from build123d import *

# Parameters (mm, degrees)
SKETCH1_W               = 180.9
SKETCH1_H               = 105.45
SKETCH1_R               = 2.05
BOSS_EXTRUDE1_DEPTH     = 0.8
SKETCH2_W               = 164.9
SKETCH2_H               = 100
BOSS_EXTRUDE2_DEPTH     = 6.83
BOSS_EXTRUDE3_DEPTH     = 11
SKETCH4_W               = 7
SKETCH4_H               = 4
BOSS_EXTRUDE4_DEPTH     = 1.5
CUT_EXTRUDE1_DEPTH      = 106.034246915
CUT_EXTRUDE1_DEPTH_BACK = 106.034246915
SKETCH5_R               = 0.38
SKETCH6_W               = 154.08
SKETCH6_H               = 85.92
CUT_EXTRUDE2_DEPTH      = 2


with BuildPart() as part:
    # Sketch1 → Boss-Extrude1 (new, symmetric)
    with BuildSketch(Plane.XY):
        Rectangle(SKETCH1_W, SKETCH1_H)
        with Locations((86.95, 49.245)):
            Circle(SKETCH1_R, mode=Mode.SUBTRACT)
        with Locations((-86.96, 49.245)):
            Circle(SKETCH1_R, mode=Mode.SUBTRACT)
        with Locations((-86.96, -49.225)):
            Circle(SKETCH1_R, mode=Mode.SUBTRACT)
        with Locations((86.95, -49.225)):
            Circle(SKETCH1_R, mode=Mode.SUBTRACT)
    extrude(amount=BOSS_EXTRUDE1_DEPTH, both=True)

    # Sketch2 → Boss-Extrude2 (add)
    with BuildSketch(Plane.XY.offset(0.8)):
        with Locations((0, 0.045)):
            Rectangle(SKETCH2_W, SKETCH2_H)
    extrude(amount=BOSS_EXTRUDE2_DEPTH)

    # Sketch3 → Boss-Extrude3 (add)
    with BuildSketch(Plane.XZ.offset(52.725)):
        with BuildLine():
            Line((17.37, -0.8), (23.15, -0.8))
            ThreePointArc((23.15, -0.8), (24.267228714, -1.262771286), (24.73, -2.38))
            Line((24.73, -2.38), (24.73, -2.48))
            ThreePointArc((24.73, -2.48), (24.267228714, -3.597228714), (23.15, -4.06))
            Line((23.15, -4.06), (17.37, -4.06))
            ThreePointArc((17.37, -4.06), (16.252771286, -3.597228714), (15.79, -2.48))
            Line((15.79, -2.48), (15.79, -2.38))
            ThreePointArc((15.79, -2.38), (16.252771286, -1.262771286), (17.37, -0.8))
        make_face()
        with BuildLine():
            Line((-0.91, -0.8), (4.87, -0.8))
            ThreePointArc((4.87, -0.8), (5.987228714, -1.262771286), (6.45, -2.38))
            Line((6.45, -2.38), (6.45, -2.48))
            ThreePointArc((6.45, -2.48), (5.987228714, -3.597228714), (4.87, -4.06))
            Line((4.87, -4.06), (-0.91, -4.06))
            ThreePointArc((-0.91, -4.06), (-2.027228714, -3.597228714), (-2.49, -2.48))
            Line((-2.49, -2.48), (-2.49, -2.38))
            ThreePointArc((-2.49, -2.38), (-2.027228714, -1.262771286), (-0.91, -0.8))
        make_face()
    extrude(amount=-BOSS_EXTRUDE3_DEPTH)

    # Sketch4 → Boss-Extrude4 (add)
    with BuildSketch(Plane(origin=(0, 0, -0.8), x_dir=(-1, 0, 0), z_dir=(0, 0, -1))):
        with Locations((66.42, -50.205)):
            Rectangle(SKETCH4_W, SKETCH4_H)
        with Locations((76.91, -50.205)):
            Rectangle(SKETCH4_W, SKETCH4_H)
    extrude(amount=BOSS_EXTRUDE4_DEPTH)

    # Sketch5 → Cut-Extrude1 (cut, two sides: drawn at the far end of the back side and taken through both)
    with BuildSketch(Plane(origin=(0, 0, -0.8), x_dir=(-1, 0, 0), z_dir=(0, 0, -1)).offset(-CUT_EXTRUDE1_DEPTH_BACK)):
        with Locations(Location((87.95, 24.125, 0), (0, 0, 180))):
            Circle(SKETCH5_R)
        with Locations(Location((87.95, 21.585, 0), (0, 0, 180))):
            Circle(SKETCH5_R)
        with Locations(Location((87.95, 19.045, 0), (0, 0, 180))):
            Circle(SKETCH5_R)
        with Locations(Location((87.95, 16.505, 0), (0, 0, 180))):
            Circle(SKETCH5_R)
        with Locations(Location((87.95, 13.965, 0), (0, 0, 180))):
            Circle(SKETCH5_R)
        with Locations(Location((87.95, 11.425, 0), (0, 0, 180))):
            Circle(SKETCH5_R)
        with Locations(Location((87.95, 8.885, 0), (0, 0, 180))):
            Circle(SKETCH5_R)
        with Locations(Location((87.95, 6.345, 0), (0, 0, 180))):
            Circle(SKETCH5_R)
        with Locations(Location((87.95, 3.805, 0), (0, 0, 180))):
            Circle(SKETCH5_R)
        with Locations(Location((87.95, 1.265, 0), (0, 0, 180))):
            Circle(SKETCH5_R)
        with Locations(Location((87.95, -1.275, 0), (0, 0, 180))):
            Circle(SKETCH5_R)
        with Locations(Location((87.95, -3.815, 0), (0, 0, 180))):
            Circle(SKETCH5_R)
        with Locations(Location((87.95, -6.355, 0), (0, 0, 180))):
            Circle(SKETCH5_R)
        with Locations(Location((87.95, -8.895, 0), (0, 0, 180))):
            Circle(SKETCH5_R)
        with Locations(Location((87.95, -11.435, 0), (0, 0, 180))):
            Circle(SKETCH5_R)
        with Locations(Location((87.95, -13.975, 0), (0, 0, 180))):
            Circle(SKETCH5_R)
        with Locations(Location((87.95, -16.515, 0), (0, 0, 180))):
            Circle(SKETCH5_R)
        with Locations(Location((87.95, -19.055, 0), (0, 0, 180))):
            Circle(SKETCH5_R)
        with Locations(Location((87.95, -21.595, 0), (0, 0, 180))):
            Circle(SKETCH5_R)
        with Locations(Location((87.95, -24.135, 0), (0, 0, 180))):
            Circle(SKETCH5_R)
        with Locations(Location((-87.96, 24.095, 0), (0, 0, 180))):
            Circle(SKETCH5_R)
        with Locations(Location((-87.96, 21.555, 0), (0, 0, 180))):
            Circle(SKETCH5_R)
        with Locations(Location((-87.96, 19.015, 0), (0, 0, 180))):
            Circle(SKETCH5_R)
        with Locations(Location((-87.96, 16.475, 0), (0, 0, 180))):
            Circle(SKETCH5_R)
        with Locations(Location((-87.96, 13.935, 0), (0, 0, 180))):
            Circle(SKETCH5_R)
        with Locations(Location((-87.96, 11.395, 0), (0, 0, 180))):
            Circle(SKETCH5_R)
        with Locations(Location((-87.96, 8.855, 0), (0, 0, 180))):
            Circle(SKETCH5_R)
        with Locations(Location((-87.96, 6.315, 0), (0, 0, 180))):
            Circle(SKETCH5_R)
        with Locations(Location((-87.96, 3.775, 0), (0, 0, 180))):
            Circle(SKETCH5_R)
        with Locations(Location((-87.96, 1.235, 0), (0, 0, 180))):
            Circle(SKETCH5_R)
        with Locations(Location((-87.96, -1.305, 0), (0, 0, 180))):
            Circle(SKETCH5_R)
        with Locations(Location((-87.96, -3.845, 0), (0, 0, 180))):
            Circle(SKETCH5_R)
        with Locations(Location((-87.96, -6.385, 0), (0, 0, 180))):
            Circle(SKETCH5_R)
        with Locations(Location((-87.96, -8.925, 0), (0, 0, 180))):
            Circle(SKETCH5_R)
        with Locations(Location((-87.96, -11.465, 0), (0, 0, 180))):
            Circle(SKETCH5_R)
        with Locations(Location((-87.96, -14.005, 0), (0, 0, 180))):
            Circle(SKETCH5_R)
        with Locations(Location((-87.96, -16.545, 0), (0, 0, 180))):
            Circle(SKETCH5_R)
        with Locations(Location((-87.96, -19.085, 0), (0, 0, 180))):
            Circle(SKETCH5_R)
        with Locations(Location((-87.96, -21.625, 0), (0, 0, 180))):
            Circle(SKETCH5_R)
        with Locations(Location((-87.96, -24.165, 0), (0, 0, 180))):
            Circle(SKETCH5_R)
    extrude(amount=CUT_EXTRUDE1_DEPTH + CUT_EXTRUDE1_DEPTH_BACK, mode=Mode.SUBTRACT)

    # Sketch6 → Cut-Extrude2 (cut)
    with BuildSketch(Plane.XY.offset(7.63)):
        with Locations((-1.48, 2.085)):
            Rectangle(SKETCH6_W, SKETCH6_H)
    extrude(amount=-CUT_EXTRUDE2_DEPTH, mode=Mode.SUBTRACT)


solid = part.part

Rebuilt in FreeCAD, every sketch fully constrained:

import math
import FreeCAD as App
import Part
import Sketcher
from FreeCAD import Vector
Q = App.Units.Quantity


def add_polygon(sketch, points):
    """Adds a closed chain of lines whose ends are joined by coincident constraints."""
    first, n = sketch.GeometryCount, len(points)
    for a, b in zip(points, points[1:] + points[:1]):
        sketch.addGeometry(Part.LineSegment(App.Vector(*a, 0), App.Vector(*b, 0)), False)
    for i in range(n):
        sketch.addConstraint(Sketcher.Constraint("Coincident", first + i, 2, first + (i + 1) % n, 1))

doc = App.newDocument("Part")
body = doc.addObject("PartDesign::Body", "Body")

sketch1 = body.newObject("Sketcher::SketchObject", "Sketch")
sketch1.AttachmentSupport = (doc.getObject("XY_Plane"), [""])
sketch1.MapMode = "FlatFace"
add_polygon(sketch1, [(-90.5, 52.7), (-90.5, -52.7), (90.5, -52.7), (90.5, 52.7)])
sketch1.addGeometry(Part.Circle(Vector(-87, -49.2, 0), Vector(0, 0, 1), 2), False)
sketch1.addGeometry(Part.Circle(Vector(87, -49.2, 0), Vector(0, 0, 1), 2), False)
sketch1.addGeometry(Part.Circle(Vector(-87, 49.2, 0), Vector(0, 0, 1), 2), False)
sketch1.addGeometry(Part.Circle(Vector(87, 49.2, 0), Vector(0, 0, 1), 2), False)
sketch1.addConstraint([
    Sketcher.Constraint("Vertical", 0),
    Sketcher.Constraint("Horizontal", 1),
    Sketcher.Constraint("Vertical", 2),
    Sketcher.Constraint("Horizontal", 3),
    Sketcher.Constraint("Equal", 4, 5),
    Sketcher.Constraint("Equal", 5, 6),
    Sketcher.Constraint("Equal", 6, 7),
    Sketcher.Constraint("Symmetric", 0, 2, 2, 2, -1, 1),
    Sketcher.Constraint("Horizontal", 4, 3, 5, 3),
    Sketcher.Constraint("Horizontal", 6, 3, 7, 3),
    Sketcher.Constraint("Vertical", 4, 3, 6, 3),
    Sketcher.Constraint("Vertical", 5, 3, 7, 3),
    Sketcher.Constraint("Diameter", 4, Q("4.1 mm")),
    Sketcher.Constraint("DistanceX", 1, 1, 1, 2, Q("180.9 mm")),
    Sketcher.Constraint("DistanceY", 0, 2, 0, 1, Q("105.45 mm")),
    Sketcher.Constraint("DistanceY", 0, 2, 4, 3, Q("3.5 mm")),
    Sketcher.Constraint("DistanceX", 0, 2, 5, 3, Q("177.4 mm")),
    Sketcher.Constraint("DistanceX", 4, 3, -1, 1, Q("86.96 mm")),
    Sketcher.Constraint("DistanceY", 4, 3, 6, 3, Q("98.47 mm")),
])
pad1 = body.newObject("PartDesign::Pad", "Pad")
pad1.Profile = sketch1
pad1.Length = 1.6
pad1.Midplane = True

sketch2 = body.newObject("Sketcher::SketchObject", "Sketch001")
sketch2.AttachmentSupport = (doc.getObject("XY_Plane"), [""])
sketch2.MapMode = "FlatFace"
sketch2.AttachmentOffset = App.Placement(Vector(0, 0, 0.8), App.Rotation())
add_polygon(sketch2, [(-82, 50), (-82, -50), (82, -50), (82, 50)])
sketch2.addConstraint([
    Sketcher.Constraint("Vertical", 0),
    Sketcher.Constraint("Horizontal", 1),
    Sketcher.Constraint("Vertical", 2),
    Sketcher.Constraint("Horizontal", 3),
    Sketcher.Constraint("DistanceY", 0, 2, 0, 1, Q("100 mm")),
    Sketcher.Constraint("DistanceX", 1, 1, 1, 2, Q("164.9 mm")),
    Sketcher.Constraint("DistanceX", 0, 2, -1, 1, Q("82.45 mm")),
    Sketcher.Constraint("DistanceY", 0, 2, -1, 1, Q("49.955 mm")),
])
pad2 = body.newObject("PartDesign::Pad", "Pad001")
pad2.Profile = sketch2
pad2.Length = 6.83

sketch3 = body.newObject("Sketcher::SketchObject", "Sketch002")
sketch3.AttachmentSupport = (doc.getObject("XZ_Plane"), [""])
sketch3.MapMode = "FlatFace"
sketch3.AttachmentOffset = App.Placement(Vector(0, 0, 52.725), App.Rotation())
sketch3.addGeometry([
    Part.LineSegment(Vector(23.15, -0.8, 0), Vector(17.37, -0.8, 0)),
    Part.ArcOfCircle(Part.Circle(Vector(17.37, -2.38, 0), Vector(0, 0, 1), 1.58), math.radians(90), math.radians(180)),
    Part.LineSegment(Vector(15.79, -2.38, 0), Vector(15.79, -2.48, 0)),
    Part.ArcOfCircle(Part.Circle(Vector(17.37, -2.48, 0), Vector(0, 0, 1), 1.58), math.radians(-180), math.radians(-90)),
    Part.LineSegment(Vector(17.37, -4.06, 0), Vector(23.15, -4.06, 0)),
    Part.ArcOfCircle(Part.Circle(Vector(23.15, -2.48, 0), Vector(0, 0, 1), 1.58), math.radians(-90), math.radians(0)),
    Part.LineSegment(Vector(24.73, -2.48, 0), Vector(24.73, -2.38, 0)),
    Part.ArcOfCircle(Part.Circle(Vector(23.15, -2.38, 0), Vector(0, 0, 1), 1.58), math.radians(0), math.radians(90)),
    Part.LineSegment(Vector(4.87, -0.8, 0), Vector(-0.91, -0.8, 0)),
    Part.ArcOfCircle(Part.Circle(Vector(-0.91, -2.38, 0), Vector(0, 0, 1), 1.58), math.radians(90), math.radians(180)),
    Part.LineSegment(Vector(-2.49, -2.38, 0), Vector(-2.49, -2.48, 0)),
    Part.ArcOfCircle(Part.Circle(Vector(-0.91, -2.48, 0), Vector(0, 0, 1), 1.58), math.radians(-180), math.radians(-90)),
    Part.LineSegment(Vector(-0.91, -4.06, 0), Vector(4.87, -4.06, 0)),
    Part.ArcOfCircle(Part.Circle(Vector(4.87, -2.48, 0), Vector(0, 0, 1), 1.58), math.radians(-90), math.radians(0)),
    Part.LineSegment(Vector(6.45, -2.48, 0), Vector(6.45, -2.38, 0)),
    Part.ArcOfCircle(Part.Circle(Vector(4.87, -2.38, 0), Vector(0, 0, 1), 1.58), math.radians(0), math.radians(90)),
], False)
sketch3.addConstraint([
    Sketcher.Constraint("Tangent", 0, 2, 1, 1),
    Sketcher.Constraint("Tangent", 1, 2, 2, 1),
    Sketcher.Constraint("Tangent", 2, 2, 3, 1),
    Sketcher.Constraint("Tangent", 3, 2, 4, 1),
    Sketcher.Constraint("Tangent", 4, 2, 5, 1),
    Sketcher.Constraint("Tangent", 5, 2, 6, 1),
    Sketcher.Constraint("Tangent", 6, 2, 7, 1),
    Sketcher.Constraint("Tangent", 7, 2, 0, 1),
    Sketcher.Constraint("Tangent", 8, 2, 9, 1),
    Sketcher.Constraint("Tangent", 9, 2, 10, 1),
    Sketcher.Constraint("Tangent", 10, 2, 11, 1),
    Sketcher.Constraint("Tangent", 11, 2, 12, 1),
    Sketcher.Constraint("Tangent", 12, 2, 13, 1),
    Sketcher.Constraint("Tangent", 13, 2, 14, 1),
    Sketcher.Constraint("Tangent", 14, 2, 15, 1),
    Sketcher.Constraint("Tangent", 15, 2, 8, 1),
    Sketcher.Constraint("Horizontal", 0),
    Sketcher.Constraint("Vertical", 2),
    Sketcher.Constraint("Horizontal", 4),
    Sketcher.Constraint("Vertical", 6),
    Sketcher.Constraint("Horizontal", 8),
    Sketcher.Constraint("Vertical", 10),
    Sketcher.Constraint("Horizontal", 12),
    Sketcher.Constraint("Vertical", 14),
    Sketcher.Constraint("Equal", 1, 3),
    Sketcher.Constraint("Equal", 3, 5),
    Sketcher.Constraint("Equal", 5, 7),
    Sketcher.Constraint("Equal", 7, 9),
    Sketcher.Constraint("Equal", 9, 11),
    Sketcher.Constraint("Equal", 11, 13),
    Sketcher.Constraint("Equal", 13, 15),
    Sketcher.Constraint("Horizontal", 7, 3, 9, 3),
    Sketcher.Constraint("Horizontal", 5, 3, 11, 3),
    Sketcher.Constraint("Equal", 4, 8),
    Sketcher.Constraint("Radius", 1, Q("1.58 mm")),
    Sketcher.Constraint("DistanceY", 2, 2, 2, 1, Q("0.1 mm")),
    Sketcher.Constraint("DistanceX", 0, 2, 0, 1, Q("5.78 mm")),
    Sketcher.Constraint("DistanceY", 0, 2, -1, 1, Q("0.8 mm")),
    Sketcher.Constraint("DistanceX", 13, 3, 3, 3, Q("12.5 mm")),
    Sketcher.Constraint("DistanceX", -1, 1, 1, 3, Q("17.37 mm")),
])
pad3 = body.newObject("PartDesign::Pad", "Pad002")
pad3.Profile = sketch3
pad3.Length = 11
pad3.Reversed = True

sketch4 = body.newObject("Sketcher::SketchObject", "Sketch003")
sketch4.AttachmentSupport = (doc.getObject("XY_Plane"), [""])
sketch4.MapMode = "FlatFace"
sketch4.AttachmentOffset = App.Placement(Vector(0, 0, -0.8), App.Rotation())
add_polygon(sketch4, [(-62.9, -48.2), (-62.9, -52.2), (-69.9, -52.2), (-69.9, -48.2)])
add_polygon(sketch4, [(-73.4, -48.2), (-73.4, -52.2), (-80.4, -52.2), (-80.4, -48.2)])
sketch4.addConstraint([
    Sketcher.Constraint("Vertical", 0),
    Sketcher.Constraint("Horizontal", 1),
    Sketcher.Constraint("Vertical", 2),
    Sketcher.Constraint("Horizontal", 3),
    Sketcher.Constraint("Vertical", 4),
    Sketcher.Constraint("Horizontal", 5),
    Sketcher.Constraint("Vertical", 6),
    Sketcher.Constraint("Horizontal", 7),
    Sketcher.Constraint("Horizontal", 1, 2, 4, 2),
    Sketcher.Constraint("Horizontal", 3, 2, 6, 2),
    Sketcher.Constraint("Equal", 3, 5),
    Sketcher.Constraint("DistanceX", 1, 2, 1, 1, Q("7 mm")),
    Sketcher.Constraint("DistanceY", 0, 2, 0, 1, Q("4 mm")),
    Sketcher.Constraint("DistanceX", 0, 2, -1, 1, Q("62.92 mm")),
    Sketcher.Constraint("DistanceX", 4, 2, -1, 1, Q("73.41 mm")),
    Sketcher.Constraint("DistanceY", 0, 2, -1, 1, Q("52.205 mm")),
])
pad4 = body.newObject("PartDesign::Pad", "Pad003")
pad4.Profile = sketch4
pad4.Length = 1.5
pad4.Reversed = True

sketch5 = body.newObject("Sketcher::SketchObject", "Sketch004")
sketch5.AttachmentSupport = (doc.getObject("XY_Plane"), [""])
sketch5.MapMode = "FlatFace"
sketch5.AttachmentOffset = App.Placement(Vector(0, 0, -0.8), App.Rotation())
sketch5.addGeometry([
    Part.Circle(Vector(-87.95, 24.12, 0), Vector(0, 0, 1), 0.38),
    Part.Circle(Vector(-87.95, 21.59, 0), Vector(0, 0, 1), 0.38),
    Part.Circle(Vector(-87.95, 19.05, 0), Vector(0, 0, 1), 0.38),
    Part.Circle(Vector(-87.95, 16.5, 0), Vector(0, 0, 1), 0.38),
    Part.Circle(Vector(-87.95, 13.96, 0), Vector(0, 0, 1), 0.38),
    Part.Circle(Vector(-87.95, 11.43, 0), Vector(0, 0, 1), 0.38),
    Part.Circle(Vector(-87.95, 8.88, 0), Vector(0, 0, 1), 0.38),
    Part.Circle(Vector(-87.95, 6.34, 0), Vector(0, 0, 1), 0.38),
    Part.Circle(Vector(-87.95, 3.81, 0), Vector(0, 0, 1), 0.38),
    Part.Circle(Vector(-87.95, 1.26, 0), Vector(0, 0, 1), 0.38),
    Part.Circle(Vector(-87.95, -1.27, 0), Vector(0, 0, 1), 0.38),
    Part.Circle(Vector(-87.95, -3.81, 0), Vector(0, 0, 1), 0.38),
    Part.Circle(Vector(-87.95, -6.36, 0), Vector(0, 0, 1), 0.38),
    Part.Circle(Vector(-87.95, -8.89, 0), Vector(0, 0, 1), 0.38),
    Part.Circle(Vector(-87.95, -11.44, 0), Vector(0, 0, 1), 0.38),
    Part.Circle(Vector(-87.95, -13.97, 0), Vector(0, 0, 1), 0.38),
    Part.Circle(Vector(-87.95, -16.52, 0), Vector(0, 0, 1), 0.38),
    Part.Circle(Vector(-87.95, -19.05, 0), Vector(0, 0, 1), 0.38),
    Part.Circle(Vector(-87.95, -21.59, 0), Vector(0, 0, 1), 0.38),
    Part.Circle(Vector(-87.95, -24.14, 0), Vector(0, 0, 1), 0.38),
    Part.Circle(Vector(87.96, 24.09, 0), Vector(0, 0, 1), 0.38),
    Part.Circle(Vector(87.96, 21.55, 0), Vector(0, 0, 1), 0.38),
    Part.Circle(Vector(87.96, 19.02, 0), Vector(0, 0, 1), 0.38),
    Part.Circle(Vector(87.96, 16.48, 0), Vector(0, 0, 1), 0.38),
    Part.Circle(Vector(87.96, 13.94, 0), Vector(0, 0, 1), 0.38),
    Part.Circle(Vector(87.96, 11.39, 0), Vector(0, 0, 1), 0.38),
    Part.Circle(Vector(87.96, 8.86, 0), Vector(0, 0, 1), 0.38),
    Part.Circle(Vector(87.96, 6.32, 0), Vector(0, 0, 1), 0.38),
    Part.Circle(Vector(87.96, 3.77, 0), Vector(0, 0, 1), 0.38),
    Part.Circle(Vector(87.96, 1.24, 0), Vector(0, 0, 1), 0.38),
    Part.Circle(Vector(87.96, -1.3, 0), Vector(0, 0, 1), 0.38),
    Part.Circle(Vector(87.96, -3.85, 0), Vector(0, 0, 1), 0.38),
    Part.Circle(Vector(87.96, -6.38, 0), Vector(0, 0, 1), 0.38),
    Part.Circle(Vector(87.96, -8.93, 0), Vector(0, 0, 1), 0.38),
    Part.Circle(Vector(87.96, -11.46, 0), Vector(0, 0, 1), 0.38),
    Part.Circle(Vector(87.96, -14.01, 0), Vector(0, 0, 1), 0.38),
    Part.Circle(Vector(87.96, -16.55, 0), Vector(0, 0, 1), 0.38),
    Part.Circle(Vector(87.96, -19.09, 0), Vector(0, 0, 1), 0.38),
    Part.Circle(Vector(87.96, -21.62, 0), Vector(0, 0, 1), 0.38),
    Part.Circle(Vector(87.96, -24.16, 0), Vector(0, 0, 1), 0.38),
], False)
sketch5.addConstraint([
    Sketcher.Constraint("Equal", 0, 1),
    Sketcher.Constraint("Equal", 1, 2),
    Sketcher.Constraint("Equal", 2, 3),
    Sketcher.Constraint("Equal", 3, 4),
    Sketcher.Constraint("Equal", 4, 5),
    Sketcher.Constraint("Equal", 5, 6),
    Sketcher.Constraint("Equal", 6, 7),
    Sketcher.Constraint("Equal", 7, 8),
    Sketcher.Constraint("Equal", 8, 9),
    Sketcher.Constraint("Equal", 9, 10),
    Sketcher.Constraint("Equal", 10, 11),
    Sketcher.Constraint("Equal", 11, 12),
    Sketcher.Constraint("Equal", 12, 13),
    Sketcher.Constraint("Equal", 13, 14),
    Sketcher.Constraint("Equal", 14, 15),
    Sketcher.Constraint("Equal", 15, 16),
    Sketcher.Constraint("Equal", 16, 17),
    Sketcher.Constraint("Equal", 17, 18),
    Sketcher.Constraint("Equal", 18, 19),
    Sketcher.Constraint("Equal", 19, 20),
    Sketcher.Constraint("Equal", 20, 21),
    Sketcher.Constraint("Equal", 21, 22),
    Sketcher.Constraint("Equal", 22, 23),
    Sketcher.Constraint("Equal", 23, 24),
    Sketcher.Constraint("Equal", 24, 25),
    Sketcher.Constraint("Equal", 25, 26),
    Sketcher.Constraint("Equal", 26, 27),
    Sketcher.Constraint("Equal", 27, 28),
    Sketcher.Constraint("Equal", 28, 29),
    Sketcher.Constraint("Equal", 29, 30),
    Sketcher.Constraint("Equal", 30, 31),
    Sketcher.Constraint("Equal", 31, 32),
    Sketcher.Constraint("Equal", 32, 33),
    Sketcher.Constraint("Equal", 33, 34),
    Sketcher.Constraint("Equal", 34, 35),
    Sketcher.Constraint("Equal", 35, 36),
    Sketcher.Constraint("Equal", 36, 37),
    Sketcher.Constraint("Equal", 37, 38),
    Sketcher.Constraint("Equal", 38, 39),
    Sketcher.Constraint("Vertical", 0, 3, 1, 3),
    Sketcher.Constraint("Vertical", 1, 3, 2, 3),
    Sketcher.Constraint("Vertical", 2, 3, 3, 3),
    Sketcher.Constraint("Vertical", 3, 3, 4, 3),
    Sketcher.Constraint("Vertical", 4, 3, 5, 3),
    Sketcher.Constraint("Vertical", 5, 3, 6, 3),
    Sketcher.Constraint("Vertical", 6, 3, 7, 3),
    Sketcher.Constraint("Vertical", 7, 3, 8, 3),
    Sketcher.Constraint("Vertical", 8, 3, 9, 3),
    Sketcher.Constraint("Vertical", 9, 3, 10, 3),
    Sketcher.Constraint("Vertical", 10, 3, 11, 3),
    Sketcher.Constraint("Vertical", 11, 3, 12, 3),
    Sketcher.Constraint("Vertical", 12, 3, 13, 3),
    Sketcher.Constraint("Vertical", 13, 3, 14, 3),
    Sketcher.Constraint("Vertical", 14, 3, 15, 3),
    Sketcher.Constraint("Vertical", 15, 3, 16, 3),
    Sketcher.Constraint("Vertical", 16, 3, 17, 3),
    Sketcher.Constraint("Vertical", 17, 3, 18, 3),
    Sketcher.Constraint("Vertical", 18, 3, 19, 3),
    Sketcher.Constraint("Vertical", 20, 3, 21, 3),
    Sketcher.Constraint("Vertical", 21, 3, 22, 3),
    Sketcher.Constraint("Vertical", 22, 3, 23, 3),
    Sketcher.Constraint("Vertical", 23, 3, 24, 3),
    Sketcher.Constraint("Vertical", 24, 3, 25, 3),
    Sketcher.Constraint("Vertical", 25, 3, 26, 3),
    Sketcher.Constraint("Vertical", 26, 3, 27, 3),
    Sketcher.Constraint("Vertical", 27, 3, 28, 3),
    Sketcher.Constraint("Vertical", 28, 3, 29, 3),
    Sketcher.Constraint("Vertical", 29, 3, 30, 3),
    Sketcher.Constraint("Vertical", 30, 3, 31, 3),
    Sketcher.Constraint("Vertical", 31, 3, 32, 3),
    Sketcher.Constraint("Vertical", 32, 3, 33, 3),
    Sketcher.Constraint("Vertical", 33, 3, 34, 3),
    Sketcher.Constraint("Vertical", 34, 3, 35, 3),
    Sketcher.Constraint("Vertical", 35, 3, 36, 3),
    Sketcher.Constraint("Vertical", 36, 3, 37, 3),
    Sketcher.Constraint("Vertical", 37, 3, 38, 3),
    Sketcher.Constraint("Vertical", 38, 3, 39, 3),
    Sketcher.Constraint("Diameter", 0, Q("0.76 mm")),
    Sketcher.Constraint("DistanceY", 5, 3, 0, 3, Q("12.7 mm")),
    Sketcher.Constraint("DistanceY", 6, 3, 1, 3, Q("12.7 mm")),
    Sketcher.Constraint("DistanceY", 7, 3, 2, 3, Q("12.7 mm")),
    Sketcher.Constraint("DistanceY", 8, 3, 3, 3, Q("12.7 mm")),
    Sketcher.Constraint("DistanceY", 9, 3, 4, 3, Q("12.7 mm")),
    Sketcher.Constraint("DistanceY", 10, 3, 5, 3, Q("12.7 mm")),
    Sketcher.Constraint("DistanceY", 11, 3, 6, 3, Q("12.7 mm")),
    Sketcher.Constraint("DistanceY", 12, 3, 7, 3, Q("12.7 mm")),
    Sketcher.Constraint("DistanceY", 13, 3, 8, 3, Q("12.7 mm")),
    Sketcher.Constraint("DistanceY", 14, 3, 9, 3, Q("12.7 mm")),
    Sketcher.Constraint("DistanceY", 15, 3, 10, 3, Q("12.7 mm")),
    Sketcher.Constraint("DistanceY", 16, 3, 11, 3, Q("12.7 mm")),
    Sketcher.Constraint("DistanceY", 17, 3, 12, 3, Q("12.7 mm")),
    Sketcher.Constraint("DistanceY", 18, 3, 13, 3, Q("12.7 mm")),
    Sketcher.Constraint("DistanceY", 19, 3, 14, 3, Q("12.7 mm")),
    Sketcher.Constraint("DistanceY", 25, 3, 20, 3, Q("12.7 mm")),
    Sketcher.Constraint("DistanceY", 26, 3, 21, 3, Q("12.7 mm")),
    Sketcher.Constraint("DistanceY", 27, 3, 22, 3, Q("12.7 mm")),
    Sketcher.Constraint("DistanceY", 28, 3, 23, 3, Q("12.7 mm")),
    Sketcher.Constraint("DistanceY", 29, 3, 24, 3, Q("12.7 mm")),
    Sketcher.Constraint("DistanceY", 30, 3, 25, 3, Q("12.7 mm")),
    Sketcher.Constraint("DistanceY", 31, 3, 26, 3, Q("12.7 mm")),
    Sketcher.Constraint("DistanceY", 32, 3, 27, 3, Q("12.7 mm")),
    Sketcher.Constraint("DistanceY", 33, 3, 28, 3, Q("12.7 mm")),
    Sketcher.Constraint("DistanceY", 34, 3, 29, 3, Q("12.7 mm")),
    Sketcher.Constraint("DistanceY", 35, 3, 30, 3, Q("12.7 mm")),
    Sketcher.Constraint("DistanceY", 36, 3, 31, 3, Q("12.7 mm")),
    Sketcher.Constraint("DistanceY", 37, 3, 32, 3, Q("12.7 mm")),
    Sketcher.Constraint("DistanceY", 38, 3, 33, 3, Q("12.7 mm")),
    Sketcher.Constraint("DistanceY", 39, 3, 34, 3, Q("12.7 mm")),
    Sketcher.Constraint("DistanceX", 0, 3, -1, 1, Q("87.95 mm")),
    Sketcher.Constraint("DistanceX", -1, 1, 20, 3, Q("87.96 mm")),
    Sketcher.Constraint("DistanceY", 1, 3, 0, 3, Q("2.54 mm")),
    Sketcher.Constraint("DistanceY", 2, 3, 1, 3, Q("2.54 mm")),
    Sketcher.Constraint("DistanceY", 3, 3, 2, 3, Q("2.54 mm")),
    Sketcher.Constraint("DistanceY", 4, 3, 3, 3, Q("2.54 mm")),
    Sketcher.Constraint("DistanceY", 20, 3, 0, 3, Q("0.03 mm")),
    Sketcher.Constraint("DistanceY", 21, 3, 20, 3, Q("2.54 mm")),
    Sketcher.Constraint("DistanceY", 22, 3, 21, 3, Q("2.54 mm")),
    Sketcher.Constraint("DistanceY", 23, 3, 22, 3, Q("2.54 mm")),
    Sketcher.Constraint("DistanceY", 24, 3, 23, 3, Q("2.54 mm")),
    Sketcher.Constraint("DistanceY", -1, 1, 0, 3, Q("24.125 mm")),
])
pocket1 = body.newObject("PartDesign::Pocket", "Pocket")
pocket1.Profile = sketch5
pocket1.Type = "ThroughAll"
pocket1.Midplane = True

sketch6 = body.newObject("Sketcher::SketchObject", "Sketch005")
sketch6.AttachmentSupport = (doc.getObject("XY_Plane"), [""])
sketch6.MapMode = "FlatFace"
sketch6.AttachmentOffset = App.Placement(Vector(0, 0, 7.63), App.Rotation())
add_polygon(sketch6, [(-79, 45), (-79, -41), (76, -41), (76, 45)])
sketch6.addConstraint([
    Sketcher.Constraint("Vertical", 0),
    Sketcher.Constraint("Horizontal", 1),
    Sketcher.Constraint("Vertical", 2),
    Sketcher.Constraint("Horizontal", 3),
    Sketcher.Constraint("DistanceX", 1, 1, 1, 2, Q("154.08 mm")),
    Sketcher.Constraint("DistanceY", 0, 2, 0, 1, Q("85.92 mm")),
    Sketcher.Constraint("DistanceX", 0, 2, -1, 1, Q("78.52 mm")),
    Sketcher.Constraint("DistanceY", 0, 2, -1, 1, Q("40.875 mm")),
])
pocket2 = body.newObject("PartDesign::Pocket", "Pocket001")
pocket2.Profile = sketch6
pocket2.Length = 2

doc.recompute()
